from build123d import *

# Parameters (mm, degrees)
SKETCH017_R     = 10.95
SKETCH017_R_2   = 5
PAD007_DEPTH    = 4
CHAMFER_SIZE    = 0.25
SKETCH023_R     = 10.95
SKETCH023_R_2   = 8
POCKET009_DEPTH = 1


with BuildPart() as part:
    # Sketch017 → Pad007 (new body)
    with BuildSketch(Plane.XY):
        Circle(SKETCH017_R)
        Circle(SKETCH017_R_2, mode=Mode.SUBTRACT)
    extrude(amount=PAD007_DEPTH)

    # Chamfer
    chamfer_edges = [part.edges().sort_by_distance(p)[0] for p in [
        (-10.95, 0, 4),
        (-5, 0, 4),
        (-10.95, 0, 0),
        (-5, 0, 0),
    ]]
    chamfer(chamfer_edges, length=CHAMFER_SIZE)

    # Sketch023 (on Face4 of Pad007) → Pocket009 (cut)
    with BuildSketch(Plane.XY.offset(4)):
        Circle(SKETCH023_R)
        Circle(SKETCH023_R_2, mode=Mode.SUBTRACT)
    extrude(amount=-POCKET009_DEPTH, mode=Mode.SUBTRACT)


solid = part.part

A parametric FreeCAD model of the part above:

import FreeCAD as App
import Part
import Sketcher

V = App.Vector
Q = App.Units.Quantity


def edges_at(feature, points):
    """Names of the edges that pass closest to the given points."""
    edges = feature.Shape.Edges
    near = lambda p: min(range(len(edges)), key=lambda i: edges[i].distToShape(Part.Vertex(*p))[0])
    return sorted({f"Edge{near(p) + 1}" for p in points})

doc = App.newDocument("Part")
body = doc.addObject("PartDesign::Body", "Body")

# Sketch on XY plane
sketch1 = body.newObject("Sketcher::SketchObject", "Sketch")
sketch1.AttachmentSupport = (doc.getObject("XY_Plane"), [""])
sketch1.MapMode = "FlatFace"
sketch1.addGeometry([
    Part.Circle(V(0, 0, 0), V(0, 0, 1), 11),
    Part.Circle(V(0, 0, 0), V(0, 0, 1), 5),
], False)
sketch1.addConstraint([
    Sketcher.Constraint("Coincident", 0, 3, -1, 1),
    Sketcher.Constraint("Coincident", 1, 3, -1, 1),
    Sketcher.Constraint("Diameter", 1, Q("10 mm")),
    Sketcher.Constraint("Diameter", 0, Q("21.9 mm")),
])
pad1 = body.newObject("PartDesign::Pad", "Pad")
pad1.Profile = sketch1
pad1.Length = 4
doc.recompute()

chamfer = body.newObject("PartDesign::Chamfer", "Chamfer")
chamfer.Base = (pad1, edges_at(pad1, [
    (-10.95, 0, 4),
    (-5, 0, 4),
    (-10.95, 0, 0),
    (-5, 0, 0),
]))
chamfer.Size = 0.25

# Sketch on XY plane
sketch2 = body.newObject("Sketcher::SketchObject", "Sketch001")
sketch2.AttachmentSupport = (doc.getObject("XY_Plane"), [""])
sketch2.MapMode = "FlatFace"
sketch2.AttachmentOffset = App.Placement(V(0, 0, 4), App.Rotation())
sketch2.addGeometry([
    Part.Circle(V(0, 0, 0), V(0, 0, 1), 11),
    Part.Circle(V(0, 0, 0), V(0, 0, 1), 8),
], False)
sketch2.addConstraint([
    Sketcher.Constraint("Coincident", 0, 3, -1, 1),
    Sketcher.Constraint("Coincident", 1, 3, -1, 1),
    Sketcher.Constraint("Diameter", 1, Q("16 mm")),
    Sketcher.Constraint("Diameter", 0, Q("21.9 mm")),
])
pocket1 = body.newObject("PartDesign::Pocket", "Pocket")
pocket1.Profile = sketch2
pocket1.Length = 1

doc.recompute()
